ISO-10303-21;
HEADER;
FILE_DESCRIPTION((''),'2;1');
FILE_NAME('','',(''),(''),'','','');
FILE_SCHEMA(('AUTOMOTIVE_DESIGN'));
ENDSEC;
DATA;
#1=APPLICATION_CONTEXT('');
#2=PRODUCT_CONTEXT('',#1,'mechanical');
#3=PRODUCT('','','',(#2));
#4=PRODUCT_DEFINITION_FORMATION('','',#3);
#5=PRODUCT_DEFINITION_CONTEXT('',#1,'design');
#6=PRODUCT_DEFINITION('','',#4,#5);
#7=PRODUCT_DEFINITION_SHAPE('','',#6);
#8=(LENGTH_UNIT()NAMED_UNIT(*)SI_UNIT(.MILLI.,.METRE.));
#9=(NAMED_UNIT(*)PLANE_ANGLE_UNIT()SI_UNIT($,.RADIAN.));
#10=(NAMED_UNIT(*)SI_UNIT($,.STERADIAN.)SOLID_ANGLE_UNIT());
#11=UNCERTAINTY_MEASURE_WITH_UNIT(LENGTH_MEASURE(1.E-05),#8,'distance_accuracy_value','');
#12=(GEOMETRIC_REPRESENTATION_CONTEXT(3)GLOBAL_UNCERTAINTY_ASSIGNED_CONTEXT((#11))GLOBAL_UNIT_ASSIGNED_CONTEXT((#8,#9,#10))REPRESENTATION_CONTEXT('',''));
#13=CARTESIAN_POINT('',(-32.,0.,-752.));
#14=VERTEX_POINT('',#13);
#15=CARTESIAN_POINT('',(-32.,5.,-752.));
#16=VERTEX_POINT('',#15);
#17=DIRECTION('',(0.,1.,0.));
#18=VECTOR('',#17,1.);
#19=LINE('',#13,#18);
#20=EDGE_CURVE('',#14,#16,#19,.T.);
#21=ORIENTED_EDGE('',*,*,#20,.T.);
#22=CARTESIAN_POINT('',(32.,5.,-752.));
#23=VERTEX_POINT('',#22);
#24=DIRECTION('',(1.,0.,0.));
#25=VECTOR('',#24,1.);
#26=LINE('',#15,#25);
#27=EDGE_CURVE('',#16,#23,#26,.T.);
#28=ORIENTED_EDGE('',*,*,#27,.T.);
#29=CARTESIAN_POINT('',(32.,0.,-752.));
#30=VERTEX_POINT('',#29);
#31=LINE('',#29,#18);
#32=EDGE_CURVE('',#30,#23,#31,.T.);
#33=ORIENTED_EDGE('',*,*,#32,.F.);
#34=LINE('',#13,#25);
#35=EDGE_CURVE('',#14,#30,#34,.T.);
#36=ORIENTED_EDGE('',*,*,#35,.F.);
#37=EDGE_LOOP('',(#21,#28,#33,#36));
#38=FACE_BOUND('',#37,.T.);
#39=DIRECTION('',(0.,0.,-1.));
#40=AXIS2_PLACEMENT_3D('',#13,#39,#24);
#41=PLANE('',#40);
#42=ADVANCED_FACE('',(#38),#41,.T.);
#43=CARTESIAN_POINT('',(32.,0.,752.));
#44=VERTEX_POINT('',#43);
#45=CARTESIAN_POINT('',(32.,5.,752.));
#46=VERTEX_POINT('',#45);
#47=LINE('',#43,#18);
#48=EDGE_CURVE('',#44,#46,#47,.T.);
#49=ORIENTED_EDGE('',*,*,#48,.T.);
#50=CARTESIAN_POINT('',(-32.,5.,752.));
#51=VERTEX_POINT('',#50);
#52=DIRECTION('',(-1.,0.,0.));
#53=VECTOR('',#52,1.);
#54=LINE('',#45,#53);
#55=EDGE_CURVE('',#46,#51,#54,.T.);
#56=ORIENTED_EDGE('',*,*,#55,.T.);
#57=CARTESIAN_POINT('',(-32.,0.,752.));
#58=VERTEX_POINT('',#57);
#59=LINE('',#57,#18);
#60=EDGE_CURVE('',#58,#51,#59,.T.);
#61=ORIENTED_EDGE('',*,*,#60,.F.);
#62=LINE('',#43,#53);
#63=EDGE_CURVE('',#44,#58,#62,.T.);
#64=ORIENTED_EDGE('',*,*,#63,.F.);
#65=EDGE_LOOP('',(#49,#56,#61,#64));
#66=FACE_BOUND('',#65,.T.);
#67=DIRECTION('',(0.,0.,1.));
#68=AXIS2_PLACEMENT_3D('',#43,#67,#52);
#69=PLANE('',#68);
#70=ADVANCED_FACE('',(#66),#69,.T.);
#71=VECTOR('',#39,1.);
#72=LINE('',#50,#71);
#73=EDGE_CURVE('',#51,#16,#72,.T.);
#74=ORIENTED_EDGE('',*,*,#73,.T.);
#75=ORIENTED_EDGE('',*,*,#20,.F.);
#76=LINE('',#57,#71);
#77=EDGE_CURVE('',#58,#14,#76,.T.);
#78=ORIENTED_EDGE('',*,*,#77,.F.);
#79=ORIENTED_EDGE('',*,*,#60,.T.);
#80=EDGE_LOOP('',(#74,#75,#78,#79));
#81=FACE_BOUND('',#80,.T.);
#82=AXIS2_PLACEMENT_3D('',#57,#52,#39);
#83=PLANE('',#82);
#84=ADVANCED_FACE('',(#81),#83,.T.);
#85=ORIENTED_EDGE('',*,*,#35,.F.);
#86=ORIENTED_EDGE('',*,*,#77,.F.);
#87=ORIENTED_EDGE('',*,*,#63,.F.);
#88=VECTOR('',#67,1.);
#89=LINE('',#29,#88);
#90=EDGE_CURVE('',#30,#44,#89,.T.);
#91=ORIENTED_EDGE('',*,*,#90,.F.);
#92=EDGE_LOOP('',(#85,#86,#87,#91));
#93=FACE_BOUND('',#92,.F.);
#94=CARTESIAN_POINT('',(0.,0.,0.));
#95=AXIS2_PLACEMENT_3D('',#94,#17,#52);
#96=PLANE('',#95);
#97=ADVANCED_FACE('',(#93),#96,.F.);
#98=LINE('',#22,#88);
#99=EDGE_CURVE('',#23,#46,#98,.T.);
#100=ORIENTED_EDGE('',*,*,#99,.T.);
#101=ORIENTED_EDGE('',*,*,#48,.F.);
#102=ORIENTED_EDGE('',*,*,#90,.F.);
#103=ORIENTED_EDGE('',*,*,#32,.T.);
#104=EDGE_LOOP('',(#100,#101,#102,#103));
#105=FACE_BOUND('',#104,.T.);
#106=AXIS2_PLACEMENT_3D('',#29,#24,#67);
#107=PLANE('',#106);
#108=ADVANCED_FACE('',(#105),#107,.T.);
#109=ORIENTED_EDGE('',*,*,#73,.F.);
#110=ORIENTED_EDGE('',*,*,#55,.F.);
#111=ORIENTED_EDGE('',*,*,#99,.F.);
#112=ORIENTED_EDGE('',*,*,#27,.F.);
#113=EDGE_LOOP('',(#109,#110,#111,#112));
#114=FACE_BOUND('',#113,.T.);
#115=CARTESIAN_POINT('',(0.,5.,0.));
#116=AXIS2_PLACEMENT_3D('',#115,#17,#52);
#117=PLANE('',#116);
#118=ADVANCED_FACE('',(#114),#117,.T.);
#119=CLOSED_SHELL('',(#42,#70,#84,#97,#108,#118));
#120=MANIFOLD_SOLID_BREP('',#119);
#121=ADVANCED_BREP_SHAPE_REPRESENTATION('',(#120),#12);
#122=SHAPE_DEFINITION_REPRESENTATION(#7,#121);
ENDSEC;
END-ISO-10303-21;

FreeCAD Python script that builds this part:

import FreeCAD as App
import Part
import Sketcher

doc = App.newDocument("Part")
body = doc.addObject("PartDesign::Body", "Body")

# Sketch on XZ plane
sketch1 = doc.addObject("Sketcher::SketchObject", "Sketch")
body.addObject(sketch1)
sketch1.AttachmentSupport = (doc.XZ_Plane, [""])
sketch1.MapMode = "FlatFace"
sketch1.addGeometry(Part.LineSegment(App.Vector(-32, 752, 0), App.Vector(32, 752, 0)), False)
sketch1.addGeometry(Part.LineSegment(App.Vector(32, 752, 0), App.Vector(32, -752, 0)), False)
sketch1.addGeometry(Part.LineSegment(App.Vector(32, -752, 0), App.Vector(-32, -752, 0)), False)
sketch1.addGeometry(Part.LineSegment(App.Vector(-32, -752, 0), App.Vector(-32, 752, 0)), False)
sketch1.addConstraint(Sketcher.Constraint("Coincident", 0, 2, 1, 1))
sketch1.addConstraint(Sketcher.Constraint("Coincident", 1, 2, 2, 1))
sketch1.addConstraint(Sketcher.Constraint("Coincident", 2, 2, 3, 1))
sketch1.addConstraint(Sketcher.Constraint("Coincident", 3, 2, 0, 1))
sketch1.addConstraint(Sketcher.Constraint("Horizontal", 0))
sketch1.addConstraint(Sketcher.Constraint("Vertical", 1))
sketch1.addConstraint(Sketcher.Constraint("Horizontal", 2))
sketch1.addConstraint(Sketcher.Constraint("Vertical", 3))
sketch1.addConstraint(Sketcher.Constraint("Symmetric", 0, 2, 2, 2, -1, 1))
sketch1.addConstraint(Sketcher.Constraint("DistanceX", 0, 1, 0, 2, 64.0))
sketch1.addConstraint(Sketcher.Constraint("DistanceY", 1, 2, 1, 1, 1504.0))
pad1 = doc.addObject("PartDesign::Pad", "Pad")
body.addObject(pad1)
pad1.Profile = sketch1
pad1.Length = 5
pad1.Reversed = True

doc.recompute()
